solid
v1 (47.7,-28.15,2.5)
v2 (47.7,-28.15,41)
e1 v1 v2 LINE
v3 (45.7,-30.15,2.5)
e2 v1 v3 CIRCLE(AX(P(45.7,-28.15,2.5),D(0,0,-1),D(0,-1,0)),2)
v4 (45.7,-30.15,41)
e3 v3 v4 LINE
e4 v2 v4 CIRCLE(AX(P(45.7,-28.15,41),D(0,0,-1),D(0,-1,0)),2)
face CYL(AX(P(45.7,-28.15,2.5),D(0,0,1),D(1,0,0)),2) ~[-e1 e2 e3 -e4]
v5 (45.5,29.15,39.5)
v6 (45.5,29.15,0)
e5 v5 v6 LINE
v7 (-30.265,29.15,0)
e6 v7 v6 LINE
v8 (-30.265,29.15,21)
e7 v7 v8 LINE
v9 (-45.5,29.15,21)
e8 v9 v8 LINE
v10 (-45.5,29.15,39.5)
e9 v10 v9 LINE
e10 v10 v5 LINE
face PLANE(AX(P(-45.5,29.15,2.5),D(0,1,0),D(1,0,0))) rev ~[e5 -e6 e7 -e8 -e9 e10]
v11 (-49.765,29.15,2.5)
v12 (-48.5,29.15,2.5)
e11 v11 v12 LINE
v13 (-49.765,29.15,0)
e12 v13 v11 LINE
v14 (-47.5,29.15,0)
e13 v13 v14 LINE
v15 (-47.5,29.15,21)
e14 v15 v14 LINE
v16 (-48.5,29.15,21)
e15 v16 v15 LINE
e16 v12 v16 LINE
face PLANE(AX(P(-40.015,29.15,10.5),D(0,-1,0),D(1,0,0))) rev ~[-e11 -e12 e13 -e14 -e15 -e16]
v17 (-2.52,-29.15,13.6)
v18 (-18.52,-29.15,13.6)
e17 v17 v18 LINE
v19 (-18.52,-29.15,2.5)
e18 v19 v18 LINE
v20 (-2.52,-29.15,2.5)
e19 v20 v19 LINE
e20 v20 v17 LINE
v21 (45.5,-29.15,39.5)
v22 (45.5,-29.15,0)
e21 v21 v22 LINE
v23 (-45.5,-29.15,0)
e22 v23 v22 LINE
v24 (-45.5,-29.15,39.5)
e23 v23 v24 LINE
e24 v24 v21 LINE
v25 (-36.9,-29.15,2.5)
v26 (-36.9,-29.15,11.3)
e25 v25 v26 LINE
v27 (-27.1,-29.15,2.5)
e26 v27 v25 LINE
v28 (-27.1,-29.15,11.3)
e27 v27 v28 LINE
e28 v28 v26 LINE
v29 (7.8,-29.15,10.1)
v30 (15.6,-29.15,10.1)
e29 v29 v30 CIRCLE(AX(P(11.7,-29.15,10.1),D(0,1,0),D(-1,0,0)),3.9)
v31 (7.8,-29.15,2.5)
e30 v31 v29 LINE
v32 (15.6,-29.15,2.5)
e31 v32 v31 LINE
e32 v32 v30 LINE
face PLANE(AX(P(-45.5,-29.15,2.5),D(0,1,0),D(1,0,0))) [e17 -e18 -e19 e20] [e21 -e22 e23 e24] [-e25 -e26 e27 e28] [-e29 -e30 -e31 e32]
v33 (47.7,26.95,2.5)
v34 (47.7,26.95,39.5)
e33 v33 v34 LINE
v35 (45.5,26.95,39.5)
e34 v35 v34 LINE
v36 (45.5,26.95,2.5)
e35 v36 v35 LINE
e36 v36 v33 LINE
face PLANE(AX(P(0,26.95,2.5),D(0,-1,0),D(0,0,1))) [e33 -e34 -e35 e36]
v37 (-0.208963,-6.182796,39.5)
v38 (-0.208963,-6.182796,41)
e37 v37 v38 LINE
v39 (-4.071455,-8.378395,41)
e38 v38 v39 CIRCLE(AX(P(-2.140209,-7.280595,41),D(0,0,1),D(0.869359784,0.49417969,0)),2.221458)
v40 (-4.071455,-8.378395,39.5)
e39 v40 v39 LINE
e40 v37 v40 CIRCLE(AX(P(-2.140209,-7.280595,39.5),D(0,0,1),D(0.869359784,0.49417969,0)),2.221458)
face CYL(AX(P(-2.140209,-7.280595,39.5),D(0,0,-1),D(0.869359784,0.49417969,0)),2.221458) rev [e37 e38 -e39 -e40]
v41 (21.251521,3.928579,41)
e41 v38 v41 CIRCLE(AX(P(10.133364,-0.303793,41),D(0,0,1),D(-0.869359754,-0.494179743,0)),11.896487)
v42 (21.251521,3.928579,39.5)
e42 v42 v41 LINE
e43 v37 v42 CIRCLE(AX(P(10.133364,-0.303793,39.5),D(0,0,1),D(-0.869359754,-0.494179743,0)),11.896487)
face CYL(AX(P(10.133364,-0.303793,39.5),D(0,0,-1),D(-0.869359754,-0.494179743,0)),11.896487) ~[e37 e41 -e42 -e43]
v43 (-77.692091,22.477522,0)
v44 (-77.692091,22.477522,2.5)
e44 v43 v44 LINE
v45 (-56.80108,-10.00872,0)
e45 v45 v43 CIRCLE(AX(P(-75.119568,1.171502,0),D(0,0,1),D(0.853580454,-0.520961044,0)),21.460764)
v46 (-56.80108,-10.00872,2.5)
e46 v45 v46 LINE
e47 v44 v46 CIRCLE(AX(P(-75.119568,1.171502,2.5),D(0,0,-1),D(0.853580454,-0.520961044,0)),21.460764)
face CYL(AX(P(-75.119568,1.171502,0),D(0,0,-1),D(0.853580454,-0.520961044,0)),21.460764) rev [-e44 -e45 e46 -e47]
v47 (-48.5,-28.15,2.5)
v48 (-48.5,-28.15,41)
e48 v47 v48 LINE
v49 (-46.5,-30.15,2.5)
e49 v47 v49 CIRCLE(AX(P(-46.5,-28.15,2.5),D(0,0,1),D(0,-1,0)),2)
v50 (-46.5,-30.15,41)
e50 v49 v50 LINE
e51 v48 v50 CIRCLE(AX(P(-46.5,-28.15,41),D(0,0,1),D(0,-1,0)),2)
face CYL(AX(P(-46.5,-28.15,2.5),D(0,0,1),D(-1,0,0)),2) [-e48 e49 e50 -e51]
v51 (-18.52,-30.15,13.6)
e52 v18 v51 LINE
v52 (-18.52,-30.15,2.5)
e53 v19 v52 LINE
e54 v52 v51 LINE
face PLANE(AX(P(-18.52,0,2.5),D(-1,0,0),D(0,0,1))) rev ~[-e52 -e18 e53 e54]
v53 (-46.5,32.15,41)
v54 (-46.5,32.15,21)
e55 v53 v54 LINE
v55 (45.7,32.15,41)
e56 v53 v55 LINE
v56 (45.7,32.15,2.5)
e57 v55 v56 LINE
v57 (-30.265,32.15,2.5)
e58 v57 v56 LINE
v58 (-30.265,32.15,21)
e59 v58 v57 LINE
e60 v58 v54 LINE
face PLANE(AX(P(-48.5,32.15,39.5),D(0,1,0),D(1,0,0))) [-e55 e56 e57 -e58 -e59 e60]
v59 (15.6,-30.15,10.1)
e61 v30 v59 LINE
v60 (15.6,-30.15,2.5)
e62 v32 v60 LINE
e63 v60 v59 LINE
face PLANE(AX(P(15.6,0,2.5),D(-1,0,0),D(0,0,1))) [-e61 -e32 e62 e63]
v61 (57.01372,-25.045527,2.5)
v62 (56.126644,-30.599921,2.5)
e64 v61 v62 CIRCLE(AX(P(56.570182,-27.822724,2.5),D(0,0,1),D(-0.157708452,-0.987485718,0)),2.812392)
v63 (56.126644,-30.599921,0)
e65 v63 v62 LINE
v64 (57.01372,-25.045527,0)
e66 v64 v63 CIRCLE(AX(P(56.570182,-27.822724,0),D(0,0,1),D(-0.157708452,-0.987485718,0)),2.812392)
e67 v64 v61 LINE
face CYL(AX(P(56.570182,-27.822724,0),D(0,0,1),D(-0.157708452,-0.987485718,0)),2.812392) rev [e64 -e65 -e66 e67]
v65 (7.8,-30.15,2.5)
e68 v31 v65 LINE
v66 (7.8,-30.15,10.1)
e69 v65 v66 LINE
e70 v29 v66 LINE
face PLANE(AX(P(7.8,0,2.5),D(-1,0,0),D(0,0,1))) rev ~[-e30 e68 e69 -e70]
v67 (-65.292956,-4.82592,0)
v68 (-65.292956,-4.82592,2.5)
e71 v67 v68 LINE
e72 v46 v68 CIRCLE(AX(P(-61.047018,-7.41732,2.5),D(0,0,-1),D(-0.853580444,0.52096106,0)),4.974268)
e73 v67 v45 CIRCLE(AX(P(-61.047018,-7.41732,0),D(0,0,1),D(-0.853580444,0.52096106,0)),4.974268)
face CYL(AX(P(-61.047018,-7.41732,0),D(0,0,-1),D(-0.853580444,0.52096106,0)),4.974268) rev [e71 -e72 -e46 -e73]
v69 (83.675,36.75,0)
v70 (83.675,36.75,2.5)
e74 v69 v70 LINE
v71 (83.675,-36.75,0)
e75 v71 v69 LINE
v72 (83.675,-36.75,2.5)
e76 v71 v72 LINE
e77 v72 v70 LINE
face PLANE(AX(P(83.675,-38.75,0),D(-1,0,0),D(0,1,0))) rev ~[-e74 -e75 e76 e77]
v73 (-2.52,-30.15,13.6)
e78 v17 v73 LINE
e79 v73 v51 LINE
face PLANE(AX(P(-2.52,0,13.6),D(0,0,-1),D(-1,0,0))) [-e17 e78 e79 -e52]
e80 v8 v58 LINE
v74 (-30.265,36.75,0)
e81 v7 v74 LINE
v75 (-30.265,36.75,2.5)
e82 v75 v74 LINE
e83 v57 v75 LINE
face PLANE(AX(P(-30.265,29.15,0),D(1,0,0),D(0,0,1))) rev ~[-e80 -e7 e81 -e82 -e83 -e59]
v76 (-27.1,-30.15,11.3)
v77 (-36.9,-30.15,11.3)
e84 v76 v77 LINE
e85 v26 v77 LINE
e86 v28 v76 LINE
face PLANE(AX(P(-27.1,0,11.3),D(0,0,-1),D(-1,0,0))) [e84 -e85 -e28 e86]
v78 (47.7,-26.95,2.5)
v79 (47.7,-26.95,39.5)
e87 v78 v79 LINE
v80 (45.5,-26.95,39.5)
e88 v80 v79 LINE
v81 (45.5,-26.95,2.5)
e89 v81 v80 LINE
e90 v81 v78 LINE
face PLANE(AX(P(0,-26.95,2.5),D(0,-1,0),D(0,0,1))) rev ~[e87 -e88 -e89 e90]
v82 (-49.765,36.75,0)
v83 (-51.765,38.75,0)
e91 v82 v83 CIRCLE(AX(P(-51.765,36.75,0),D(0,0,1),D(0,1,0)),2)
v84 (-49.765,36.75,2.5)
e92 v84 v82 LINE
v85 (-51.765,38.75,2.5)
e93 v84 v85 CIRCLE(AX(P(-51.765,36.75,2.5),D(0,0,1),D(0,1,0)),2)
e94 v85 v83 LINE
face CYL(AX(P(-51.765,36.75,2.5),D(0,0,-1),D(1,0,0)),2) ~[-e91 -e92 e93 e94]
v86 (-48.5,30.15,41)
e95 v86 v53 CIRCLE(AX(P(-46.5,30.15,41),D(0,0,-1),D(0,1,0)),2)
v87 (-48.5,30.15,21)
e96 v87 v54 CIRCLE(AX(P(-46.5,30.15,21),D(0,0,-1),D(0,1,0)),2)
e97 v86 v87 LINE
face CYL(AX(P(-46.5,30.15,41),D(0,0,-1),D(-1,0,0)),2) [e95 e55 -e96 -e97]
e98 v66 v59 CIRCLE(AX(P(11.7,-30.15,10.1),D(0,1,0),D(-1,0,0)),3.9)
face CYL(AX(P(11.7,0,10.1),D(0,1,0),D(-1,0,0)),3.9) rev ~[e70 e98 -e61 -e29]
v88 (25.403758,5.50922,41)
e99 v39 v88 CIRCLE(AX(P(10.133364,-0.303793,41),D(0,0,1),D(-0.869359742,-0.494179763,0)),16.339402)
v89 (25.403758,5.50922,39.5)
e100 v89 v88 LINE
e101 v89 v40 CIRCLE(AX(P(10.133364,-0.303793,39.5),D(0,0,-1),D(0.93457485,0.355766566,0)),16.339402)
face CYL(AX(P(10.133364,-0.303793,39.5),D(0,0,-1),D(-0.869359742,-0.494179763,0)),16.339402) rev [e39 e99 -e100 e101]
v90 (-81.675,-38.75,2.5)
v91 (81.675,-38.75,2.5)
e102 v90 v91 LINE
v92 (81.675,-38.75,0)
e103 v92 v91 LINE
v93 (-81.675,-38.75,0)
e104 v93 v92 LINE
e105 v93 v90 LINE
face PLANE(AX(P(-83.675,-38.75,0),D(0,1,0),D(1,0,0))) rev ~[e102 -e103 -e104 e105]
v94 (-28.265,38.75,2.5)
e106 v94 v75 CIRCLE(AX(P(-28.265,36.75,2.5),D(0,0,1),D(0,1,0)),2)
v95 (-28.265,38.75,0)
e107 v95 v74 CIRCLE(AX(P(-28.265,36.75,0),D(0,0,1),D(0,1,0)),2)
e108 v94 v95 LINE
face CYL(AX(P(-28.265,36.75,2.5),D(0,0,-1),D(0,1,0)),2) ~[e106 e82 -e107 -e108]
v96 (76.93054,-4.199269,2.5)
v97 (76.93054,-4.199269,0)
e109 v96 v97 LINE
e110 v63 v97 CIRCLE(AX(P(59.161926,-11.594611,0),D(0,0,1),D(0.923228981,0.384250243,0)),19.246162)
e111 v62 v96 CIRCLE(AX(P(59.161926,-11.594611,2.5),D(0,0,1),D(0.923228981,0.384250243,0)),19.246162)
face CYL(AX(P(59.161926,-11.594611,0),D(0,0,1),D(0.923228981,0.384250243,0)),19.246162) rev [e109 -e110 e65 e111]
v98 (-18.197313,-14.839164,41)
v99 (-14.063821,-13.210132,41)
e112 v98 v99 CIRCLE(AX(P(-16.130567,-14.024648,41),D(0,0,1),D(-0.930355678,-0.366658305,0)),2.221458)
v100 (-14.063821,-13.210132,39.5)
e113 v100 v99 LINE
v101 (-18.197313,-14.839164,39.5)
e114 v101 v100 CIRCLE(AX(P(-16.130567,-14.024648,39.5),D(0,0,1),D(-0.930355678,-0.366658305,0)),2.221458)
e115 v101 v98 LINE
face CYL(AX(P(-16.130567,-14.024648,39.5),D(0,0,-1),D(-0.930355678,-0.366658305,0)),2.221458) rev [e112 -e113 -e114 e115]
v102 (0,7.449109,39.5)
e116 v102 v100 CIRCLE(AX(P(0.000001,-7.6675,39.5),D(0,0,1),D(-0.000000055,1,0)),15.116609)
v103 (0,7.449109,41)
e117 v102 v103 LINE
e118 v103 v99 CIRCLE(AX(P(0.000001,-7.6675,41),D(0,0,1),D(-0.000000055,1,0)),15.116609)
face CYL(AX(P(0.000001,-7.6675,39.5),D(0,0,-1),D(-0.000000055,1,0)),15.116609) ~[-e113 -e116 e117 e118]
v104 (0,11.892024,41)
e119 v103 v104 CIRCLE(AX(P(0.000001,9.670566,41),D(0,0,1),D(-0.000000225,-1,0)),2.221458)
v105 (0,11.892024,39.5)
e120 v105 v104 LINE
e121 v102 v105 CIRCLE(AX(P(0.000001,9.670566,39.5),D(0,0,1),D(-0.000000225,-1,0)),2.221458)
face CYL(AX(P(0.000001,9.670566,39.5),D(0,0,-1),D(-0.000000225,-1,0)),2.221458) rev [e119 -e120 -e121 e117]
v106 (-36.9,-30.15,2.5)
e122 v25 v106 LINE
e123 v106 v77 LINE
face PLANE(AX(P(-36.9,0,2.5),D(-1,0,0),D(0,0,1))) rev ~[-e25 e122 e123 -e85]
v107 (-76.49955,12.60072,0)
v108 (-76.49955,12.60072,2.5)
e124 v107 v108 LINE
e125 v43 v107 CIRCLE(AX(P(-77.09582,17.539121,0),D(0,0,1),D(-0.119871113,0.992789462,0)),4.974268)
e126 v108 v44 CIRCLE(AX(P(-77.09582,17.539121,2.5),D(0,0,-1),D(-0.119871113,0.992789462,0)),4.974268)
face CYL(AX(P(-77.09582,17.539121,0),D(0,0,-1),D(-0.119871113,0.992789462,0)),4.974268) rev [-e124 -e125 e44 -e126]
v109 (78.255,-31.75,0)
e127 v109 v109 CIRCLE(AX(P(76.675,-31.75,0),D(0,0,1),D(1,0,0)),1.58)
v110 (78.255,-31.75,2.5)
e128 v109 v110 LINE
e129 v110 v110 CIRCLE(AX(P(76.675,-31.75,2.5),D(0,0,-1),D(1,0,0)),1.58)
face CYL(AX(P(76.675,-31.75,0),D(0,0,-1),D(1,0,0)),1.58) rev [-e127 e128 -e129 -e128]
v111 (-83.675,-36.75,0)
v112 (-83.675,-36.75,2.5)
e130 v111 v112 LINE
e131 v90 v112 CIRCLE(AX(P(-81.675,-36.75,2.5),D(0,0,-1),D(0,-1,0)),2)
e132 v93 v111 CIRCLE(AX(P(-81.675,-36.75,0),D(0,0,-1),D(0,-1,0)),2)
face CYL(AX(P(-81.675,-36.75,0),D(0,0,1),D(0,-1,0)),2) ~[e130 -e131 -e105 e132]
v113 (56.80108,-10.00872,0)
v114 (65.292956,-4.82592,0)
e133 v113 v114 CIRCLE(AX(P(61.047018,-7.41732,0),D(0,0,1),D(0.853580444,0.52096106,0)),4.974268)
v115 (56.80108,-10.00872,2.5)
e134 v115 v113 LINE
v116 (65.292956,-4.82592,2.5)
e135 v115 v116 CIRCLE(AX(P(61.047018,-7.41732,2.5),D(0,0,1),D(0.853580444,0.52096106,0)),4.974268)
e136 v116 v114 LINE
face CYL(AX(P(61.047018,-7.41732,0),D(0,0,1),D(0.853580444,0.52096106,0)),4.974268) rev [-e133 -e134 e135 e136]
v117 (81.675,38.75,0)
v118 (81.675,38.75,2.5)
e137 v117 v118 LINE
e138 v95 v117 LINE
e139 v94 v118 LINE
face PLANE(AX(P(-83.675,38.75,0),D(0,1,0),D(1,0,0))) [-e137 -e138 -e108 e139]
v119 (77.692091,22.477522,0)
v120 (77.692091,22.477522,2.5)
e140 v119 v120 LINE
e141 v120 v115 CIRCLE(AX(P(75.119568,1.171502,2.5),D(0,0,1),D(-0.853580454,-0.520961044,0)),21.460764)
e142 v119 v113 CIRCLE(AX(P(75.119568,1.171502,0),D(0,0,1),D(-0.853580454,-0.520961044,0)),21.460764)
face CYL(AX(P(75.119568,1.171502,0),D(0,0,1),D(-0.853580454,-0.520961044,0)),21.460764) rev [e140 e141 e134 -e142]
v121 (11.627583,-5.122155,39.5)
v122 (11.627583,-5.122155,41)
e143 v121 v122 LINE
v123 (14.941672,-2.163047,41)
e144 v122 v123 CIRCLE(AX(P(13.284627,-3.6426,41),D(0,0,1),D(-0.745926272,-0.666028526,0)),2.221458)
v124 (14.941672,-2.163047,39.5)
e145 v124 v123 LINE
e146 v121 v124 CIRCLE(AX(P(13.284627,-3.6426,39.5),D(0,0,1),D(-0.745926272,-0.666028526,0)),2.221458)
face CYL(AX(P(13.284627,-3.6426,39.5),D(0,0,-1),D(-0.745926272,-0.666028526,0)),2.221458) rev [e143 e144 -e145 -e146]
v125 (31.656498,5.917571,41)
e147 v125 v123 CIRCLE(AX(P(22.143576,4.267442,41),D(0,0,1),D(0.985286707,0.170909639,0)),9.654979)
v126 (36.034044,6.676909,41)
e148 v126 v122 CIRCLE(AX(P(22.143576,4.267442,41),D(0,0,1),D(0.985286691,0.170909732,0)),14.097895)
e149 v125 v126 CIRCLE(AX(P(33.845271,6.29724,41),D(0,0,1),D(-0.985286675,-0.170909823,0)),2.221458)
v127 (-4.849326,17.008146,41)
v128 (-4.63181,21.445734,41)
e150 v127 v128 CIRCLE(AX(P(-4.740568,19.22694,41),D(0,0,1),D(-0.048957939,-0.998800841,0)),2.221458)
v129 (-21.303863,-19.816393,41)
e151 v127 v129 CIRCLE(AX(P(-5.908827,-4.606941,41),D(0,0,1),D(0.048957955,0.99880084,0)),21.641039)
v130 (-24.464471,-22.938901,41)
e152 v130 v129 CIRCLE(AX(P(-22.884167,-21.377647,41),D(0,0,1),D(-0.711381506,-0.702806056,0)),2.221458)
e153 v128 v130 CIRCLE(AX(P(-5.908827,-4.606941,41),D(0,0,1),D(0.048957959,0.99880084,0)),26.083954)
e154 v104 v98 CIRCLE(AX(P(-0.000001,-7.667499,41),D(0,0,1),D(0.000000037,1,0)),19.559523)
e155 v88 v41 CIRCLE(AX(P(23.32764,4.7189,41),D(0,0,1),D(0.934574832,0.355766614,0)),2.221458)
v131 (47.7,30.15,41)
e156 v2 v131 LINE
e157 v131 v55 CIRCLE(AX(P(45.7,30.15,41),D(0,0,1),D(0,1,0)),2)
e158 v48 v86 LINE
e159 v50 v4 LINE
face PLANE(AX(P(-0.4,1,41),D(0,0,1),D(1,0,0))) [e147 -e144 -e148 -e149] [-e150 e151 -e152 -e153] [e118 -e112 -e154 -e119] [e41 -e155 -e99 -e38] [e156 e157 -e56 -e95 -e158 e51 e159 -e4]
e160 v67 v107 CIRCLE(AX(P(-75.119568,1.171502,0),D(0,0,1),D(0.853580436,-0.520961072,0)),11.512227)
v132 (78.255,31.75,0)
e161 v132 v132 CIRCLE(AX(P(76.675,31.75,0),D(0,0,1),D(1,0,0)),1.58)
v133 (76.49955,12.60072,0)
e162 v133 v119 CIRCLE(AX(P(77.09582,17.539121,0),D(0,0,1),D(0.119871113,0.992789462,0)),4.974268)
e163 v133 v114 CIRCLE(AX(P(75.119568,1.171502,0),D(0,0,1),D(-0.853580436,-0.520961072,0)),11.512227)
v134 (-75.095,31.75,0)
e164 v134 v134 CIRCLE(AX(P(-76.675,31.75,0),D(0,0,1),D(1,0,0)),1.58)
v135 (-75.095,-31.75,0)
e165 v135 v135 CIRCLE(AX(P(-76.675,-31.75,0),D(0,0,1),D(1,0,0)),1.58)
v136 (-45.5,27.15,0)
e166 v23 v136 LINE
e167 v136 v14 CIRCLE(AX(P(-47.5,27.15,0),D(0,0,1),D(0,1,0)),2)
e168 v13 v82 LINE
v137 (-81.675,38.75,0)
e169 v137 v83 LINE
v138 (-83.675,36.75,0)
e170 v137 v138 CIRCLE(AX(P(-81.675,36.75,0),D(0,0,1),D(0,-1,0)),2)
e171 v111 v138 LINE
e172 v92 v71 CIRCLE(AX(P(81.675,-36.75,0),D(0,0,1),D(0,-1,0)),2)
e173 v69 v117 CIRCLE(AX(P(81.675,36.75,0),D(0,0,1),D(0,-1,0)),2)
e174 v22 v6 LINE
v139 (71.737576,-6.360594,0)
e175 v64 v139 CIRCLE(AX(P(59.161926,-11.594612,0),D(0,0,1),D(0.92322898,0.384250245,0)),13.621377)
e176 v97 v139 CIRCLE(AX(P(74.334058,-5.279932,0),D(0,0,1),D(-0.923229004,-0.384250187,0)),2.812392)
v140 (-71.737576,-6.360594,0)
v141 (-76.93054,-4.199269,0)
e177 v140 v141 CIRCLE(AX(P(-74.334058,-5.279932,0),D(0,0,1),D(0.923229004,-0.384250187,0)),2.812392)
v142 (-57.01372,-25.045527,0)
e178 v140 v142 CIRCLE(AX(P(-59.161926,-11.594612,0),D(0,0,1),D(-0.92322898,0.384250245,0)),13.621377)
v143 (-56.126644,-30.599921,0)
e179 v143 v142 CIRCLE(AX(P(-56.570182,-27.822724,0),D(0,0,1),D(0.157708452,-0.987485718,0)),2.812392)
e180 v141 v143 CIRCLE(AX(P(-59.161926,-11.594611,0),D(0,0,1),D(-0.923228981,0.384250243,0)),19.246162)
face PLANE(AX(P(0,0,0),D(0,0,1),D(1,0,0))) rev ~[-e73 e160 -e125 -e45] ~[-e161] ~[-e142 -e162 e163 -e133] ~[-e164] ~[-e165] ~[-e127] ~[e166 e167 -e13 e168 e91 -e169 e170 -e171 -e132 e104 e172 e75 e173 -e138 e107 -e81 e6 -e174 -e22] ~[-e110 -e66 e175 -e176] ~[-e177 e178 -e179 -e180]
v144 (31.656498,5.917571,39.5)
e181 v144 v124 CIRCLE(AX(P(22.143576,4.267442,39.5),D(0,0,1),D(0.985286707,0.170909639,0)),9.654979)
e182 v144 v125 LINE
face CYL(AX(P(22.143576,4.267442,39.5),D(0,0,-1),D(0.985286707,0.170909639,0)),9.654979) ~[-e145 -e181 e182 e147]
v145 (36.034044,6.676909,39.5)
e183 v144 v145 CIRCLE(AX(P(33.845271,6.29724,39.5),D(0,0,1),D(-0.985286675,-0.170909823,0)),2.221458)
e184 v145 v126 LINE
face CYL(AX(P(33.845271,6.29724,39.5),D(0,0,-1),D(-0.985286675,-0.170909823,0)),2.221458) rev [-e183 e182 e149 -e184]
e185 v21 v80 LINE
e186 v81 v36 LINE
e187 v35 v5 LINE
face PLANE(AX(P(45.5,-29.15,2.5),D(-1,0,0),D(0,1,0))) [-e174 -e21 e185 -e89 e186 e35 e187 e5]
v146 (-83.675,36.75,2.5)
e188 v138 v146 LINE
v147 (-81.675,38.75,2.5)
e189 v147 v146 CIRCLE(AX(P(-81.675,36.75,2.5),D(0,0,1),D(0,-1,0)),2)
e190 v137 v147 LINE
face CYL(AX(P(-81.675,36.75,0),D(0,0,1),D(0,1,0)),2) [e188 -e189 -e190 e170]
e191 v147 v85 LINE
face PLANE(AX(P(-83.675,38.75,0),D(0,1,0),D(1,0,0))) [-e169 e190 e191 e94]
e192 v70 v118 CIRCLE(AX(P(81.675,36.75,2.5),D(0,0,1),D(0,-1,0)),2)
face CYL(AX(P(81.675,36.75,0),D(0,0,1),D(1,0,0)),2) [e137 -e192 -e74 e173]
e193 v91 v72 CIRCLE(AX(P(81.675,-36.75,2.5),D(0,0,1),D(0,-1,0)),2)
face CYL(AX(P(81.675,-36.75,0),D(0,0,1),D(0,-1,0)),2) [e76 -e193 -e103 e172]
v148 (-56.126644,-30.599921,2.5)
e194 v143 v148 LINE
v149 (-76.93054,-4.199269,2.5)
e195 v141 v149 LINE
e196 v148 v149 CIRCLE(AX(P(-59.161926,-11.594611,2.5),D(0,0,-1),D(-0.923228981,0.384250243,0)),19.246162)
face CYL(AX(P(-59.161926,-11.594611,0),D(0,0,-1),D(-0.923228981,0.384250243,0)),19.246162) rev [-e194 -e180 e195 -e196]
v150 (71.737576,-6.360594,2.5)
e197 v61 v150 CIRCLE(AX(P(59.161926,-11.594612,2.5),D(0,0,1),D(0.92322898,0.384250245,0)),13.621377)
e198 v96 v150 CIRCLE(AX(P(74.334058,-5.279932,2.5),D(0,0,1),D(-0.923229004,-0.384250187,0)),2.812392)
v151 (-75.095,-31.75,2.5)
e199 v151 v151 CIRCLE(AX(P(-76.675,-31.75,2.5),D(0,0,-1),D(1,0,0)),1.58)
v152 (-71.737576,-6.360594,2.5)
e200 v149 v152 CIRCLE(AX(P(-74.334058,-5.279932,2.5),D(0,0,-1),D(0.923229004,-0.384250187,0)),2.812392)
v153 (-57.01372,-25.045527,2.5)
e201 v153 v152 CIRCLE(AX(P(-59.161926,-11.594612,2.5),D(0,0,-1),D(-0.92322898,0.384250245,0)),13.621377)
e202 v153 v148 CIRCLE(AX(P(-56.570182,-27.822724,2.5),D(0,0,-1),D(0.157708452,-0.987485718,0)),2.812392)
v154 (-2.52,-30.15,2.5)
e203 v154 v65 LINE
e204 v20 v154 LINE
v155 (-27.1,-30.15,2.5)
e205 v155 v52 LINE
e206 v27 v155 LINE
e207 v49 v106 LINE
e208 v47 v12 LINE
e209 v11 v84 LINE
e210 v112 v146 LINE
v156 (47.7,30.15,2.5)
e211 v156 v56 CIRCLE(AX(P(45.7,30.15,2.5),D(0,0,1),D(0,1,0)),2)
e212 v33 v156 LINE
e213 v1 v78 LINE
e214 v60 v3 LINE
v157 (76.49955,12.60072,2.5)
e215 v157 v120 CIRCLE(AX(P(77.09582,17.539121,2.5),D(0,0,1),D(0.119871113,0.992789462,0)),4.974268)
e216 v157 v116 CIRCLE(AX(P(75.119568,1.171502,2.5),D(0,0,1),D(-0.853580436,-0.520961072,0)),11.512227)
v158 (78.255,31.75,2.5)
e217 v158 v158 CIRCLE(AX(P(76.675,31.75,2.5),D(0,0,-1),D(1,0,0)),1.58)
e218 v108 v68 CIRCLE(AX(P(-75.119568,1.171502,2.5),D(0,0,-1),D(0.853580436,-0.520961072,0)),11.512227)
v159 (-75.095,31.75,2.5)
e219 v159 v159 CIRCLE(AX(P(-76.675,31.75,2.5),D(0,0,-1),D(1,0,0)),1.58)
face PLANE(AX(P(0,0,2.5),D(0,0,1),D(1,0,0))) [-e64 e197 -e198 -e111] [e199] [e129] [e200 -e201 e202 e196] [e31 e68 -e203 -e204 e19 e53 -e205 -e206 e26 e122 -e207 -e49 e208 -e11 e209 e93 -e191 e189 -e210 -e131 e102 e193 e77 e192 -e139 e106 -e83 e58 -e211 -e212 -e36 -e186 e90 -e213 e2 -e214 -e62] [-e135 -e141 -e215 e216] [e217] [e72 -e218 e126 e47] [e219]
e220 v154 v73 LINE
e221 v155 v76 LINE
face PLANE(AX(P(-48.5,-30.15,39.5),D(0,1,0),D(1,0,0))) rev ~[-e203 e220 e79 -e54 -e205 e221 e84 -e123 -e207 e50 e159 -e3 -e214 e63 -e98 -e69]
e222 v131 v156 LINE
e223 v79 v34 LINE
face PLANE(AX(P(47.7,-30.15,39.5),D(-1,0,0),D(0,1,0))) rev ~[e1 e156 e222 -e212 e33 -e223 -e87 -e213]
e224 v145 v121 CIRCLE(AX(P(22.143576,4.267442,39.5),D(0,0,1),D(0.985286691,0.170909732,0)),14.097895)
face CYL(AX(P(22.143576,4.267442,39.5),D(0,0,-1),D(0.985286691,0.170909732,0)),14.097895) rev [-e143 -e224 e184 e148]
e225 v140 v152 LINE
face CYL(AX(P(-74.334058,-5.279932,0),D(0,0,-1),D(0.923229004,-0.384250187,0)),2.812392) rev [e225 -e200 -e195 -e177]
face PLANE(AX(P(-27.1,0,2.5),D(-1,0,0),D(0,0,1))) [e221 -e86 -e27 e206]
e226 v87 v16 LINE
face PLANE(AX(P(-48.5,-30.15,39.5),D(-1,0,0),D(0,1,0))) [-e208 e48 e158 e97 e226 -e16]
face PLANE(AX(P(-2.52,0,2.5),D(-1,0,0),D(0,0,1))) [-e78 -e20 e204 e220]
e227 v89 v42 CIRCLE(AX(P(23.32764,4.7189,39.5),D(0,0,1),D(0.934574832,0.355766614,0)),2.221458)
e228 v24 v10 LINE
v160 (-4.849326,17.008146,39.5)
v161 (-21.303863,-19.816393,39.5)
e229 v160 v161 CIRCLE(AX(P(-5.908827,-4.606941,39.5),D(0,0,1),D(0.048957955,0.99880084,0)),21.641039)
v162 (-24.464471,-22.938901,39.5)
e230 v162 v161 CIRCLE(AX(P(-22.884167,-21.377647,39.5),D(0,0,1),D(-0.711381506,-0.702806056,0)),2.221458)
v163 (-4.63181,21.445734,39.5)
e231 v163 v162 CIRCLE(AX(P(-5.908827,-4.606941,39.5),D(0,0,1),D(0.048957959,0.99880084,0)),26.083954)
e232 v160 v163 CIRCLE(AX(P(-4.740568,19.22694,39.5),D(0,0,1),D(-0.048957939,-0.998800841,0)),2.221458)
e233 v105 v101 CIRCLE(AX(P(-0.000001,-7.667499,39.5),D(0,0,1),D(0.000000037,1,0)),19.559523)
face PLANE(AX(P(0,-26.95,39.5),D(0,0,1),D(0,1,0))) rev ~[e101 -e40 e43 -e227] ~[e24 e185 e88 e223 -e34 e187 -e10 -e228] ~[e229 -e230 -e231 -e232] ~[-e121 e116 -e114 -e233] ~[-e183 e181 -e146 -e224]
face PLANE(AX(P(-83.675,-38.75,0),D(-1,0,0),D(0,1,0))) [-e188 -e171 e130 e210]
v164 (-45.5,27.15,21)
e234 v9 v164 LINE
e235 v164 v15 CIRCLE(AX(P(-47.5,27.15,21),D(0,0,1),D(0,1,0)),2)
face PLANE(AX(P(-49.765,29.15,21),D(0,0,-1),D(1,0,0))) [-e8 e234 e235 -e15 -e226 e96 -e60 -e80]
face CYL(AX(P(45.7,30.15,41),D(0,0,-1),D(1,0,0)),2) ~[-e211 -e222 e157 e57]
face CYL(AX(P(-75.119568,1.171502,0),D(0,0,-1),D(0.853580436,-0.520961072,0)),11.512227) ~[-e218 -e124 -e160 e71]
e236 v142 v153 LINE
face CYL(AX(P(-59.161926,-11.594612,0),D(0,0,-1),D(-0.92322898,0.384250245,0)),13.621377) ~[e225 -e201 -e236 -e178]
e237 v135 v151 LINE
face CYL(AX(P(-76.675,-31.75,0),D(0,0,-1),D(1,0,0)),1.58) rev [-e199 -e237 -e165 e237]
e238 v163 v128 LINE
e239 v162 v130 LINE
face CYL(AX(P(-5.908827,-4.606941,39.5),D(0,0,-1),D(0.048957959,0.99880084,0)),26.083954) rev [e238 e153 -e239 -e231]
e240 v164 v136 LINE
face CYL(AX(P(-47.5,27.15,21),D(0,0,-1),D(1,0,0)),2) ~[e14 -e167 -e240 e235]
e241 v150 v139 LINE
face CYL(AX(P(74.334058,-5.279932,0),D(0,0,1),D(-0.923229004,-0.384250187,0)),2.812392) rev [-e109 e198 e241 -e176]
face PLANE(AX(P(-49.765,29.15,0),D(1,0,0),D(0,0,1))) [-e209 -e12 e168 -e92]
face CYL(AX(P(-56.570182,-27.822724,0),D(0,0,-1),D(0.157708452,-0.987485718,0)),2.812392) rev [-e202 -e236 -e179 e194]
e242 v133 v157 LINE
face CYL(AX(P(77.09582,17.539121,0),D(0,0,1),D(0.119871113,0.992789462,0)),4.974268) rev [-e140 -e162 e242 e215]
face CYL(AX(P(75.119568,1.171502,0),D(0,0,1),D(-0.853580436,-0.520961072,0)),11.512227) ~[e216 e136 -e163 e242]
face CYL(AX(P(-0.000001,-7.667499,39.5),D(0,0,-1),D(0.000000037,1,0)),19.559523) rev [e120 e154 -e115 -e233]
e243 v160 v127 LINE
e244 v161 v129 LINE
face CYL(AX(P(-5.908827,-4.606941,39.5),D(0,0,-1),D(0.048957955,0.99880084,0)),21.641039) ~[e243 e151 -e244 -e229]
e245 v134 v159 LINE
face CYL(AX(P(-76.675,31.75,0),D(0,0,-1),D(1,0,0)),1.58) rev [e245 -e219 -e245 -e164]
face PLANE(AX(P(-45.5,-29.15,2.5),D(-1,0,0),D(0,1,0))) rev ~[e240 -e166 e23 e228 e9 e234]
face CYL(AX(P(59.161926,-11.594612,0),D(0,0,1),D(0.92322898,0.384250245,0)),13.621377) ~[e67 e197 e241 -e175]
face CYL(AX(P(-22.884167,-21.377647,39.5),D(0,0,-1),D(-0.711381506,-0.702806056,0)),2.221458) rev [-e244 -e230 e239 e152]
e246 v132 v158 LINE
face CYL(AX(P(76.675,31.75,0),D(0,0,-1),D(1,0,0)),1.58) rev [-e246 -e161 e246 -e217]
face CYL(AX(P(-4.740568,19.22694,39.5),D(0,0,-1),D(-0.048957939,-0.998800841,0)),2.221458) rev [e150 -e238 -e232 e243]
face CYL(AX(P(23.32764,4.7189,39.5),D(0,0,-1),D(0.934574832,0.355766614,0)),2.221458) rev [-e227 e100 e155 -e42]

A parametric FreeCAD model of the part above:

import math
import FreeCAD as App
import Part
import Sketcher

V = App.Vector


def edges_at(feature, points):
    """Names of the edges that pass closest to the given points."""
    edges = feature.Shape.Edges
    near = lambda p: min(range(len(edges)), key=lambda i: edges[i].distToShape(Part.Vertex(*p))[0])
    return sorted({f"Edge{near(p) + 1}" for p in points})


def add_polygon(sketch, points):
    """Adds a closed chain of lines whose ends are joined by coincident constraints."""
    first, n = sketch.GeometryCount, len(points)
    for a, b in zip(points, points[1:] + points[:1]):
        sketch.addGeometry(Part.LineSegment(App.Vector(*a, 0), App.Vector(*b, 0)), False)
    for i in range(n):
        sketch.addConstraint(Sketcher.Constraint("Coincident", first + i, 2, first + (i + 1) % n, 1))

doc = App.newDocument("Part")
params = doc.addObject("Spreadsheet::Sheet", "Params")
for row, (alias, value) in enumerate([
    ("sketch1_width", "91 mm"),
    ("sketch1_height", "77.5 mm"),
    ("sketch1_height2", "58.3 mm"),
    ("sketch1_width2", "167.35 mm"),
    ("pad1_length", "2.5 mm"),
    ("sketch2_diameter", "3.16 mm"),
    ("sketch3_width", "91 mm"),
    ("sketch3_width2", "96.2 mm"),
    ("sketch3_height", "62.3 mm"),
    ("sketch3_height2", "58.3 mm"),
    ("pad2_length", "37 mm"),
    ("sketch4_width", "96.2 mm"),
    ("sketch4_height", "62.3 mm"),
    ("pad3_length", "1.5 mm"),
    ("sketch5_height", "21 mm"),
    ("sketch5_width", "19.5 mm"),
    ("sketch6_height", "37 mm"),
    ("sketch6_width", "53.9 mm"),
    ("pocket3_length", "48.5 mm"),
    ("sketch7_radius", "3.9 mm"),
    ("sketch7_width", "16 mm"),
    ("sketch7_width2", "9.8 mm"),
    ("sketch7_height", "7.6 mm"),
    ("sketch7_height2", "11.1 mm"),
    ("fillet_radius", "2 mm"),
], start=1):
    params.set(f"A{row}", alias)
    params.set(f"B{row}", "=" + value)
    params.setAlias(f"B{row}", alias)

body = doc.addObject("PartDesign::Body", "Body")

# Sketch on XY plane
sketch1 = body.newObject("Sketcher::SketchObject", "Sketch")
sketch1.AttachmentSupport = (doc.getObject("XY_Plane"), [""])
sketch1.MapMode = "FlatFace"
add_polygon(sketch1, [(-84, 39), (-84, -39), (84, -39), (84, 39)])  # lines 0-3
add_polygon(sketch1, [(46, -29), (-46, -29), (-46, 29), (46, 29)])  # lines 4-7
sketch1.addConstraint(Sketcher.Constraint("Vertical", 0))
sketch1.addConstraint(Sketcher.Constraint("Horizontal", 1))
sketch1.addConstraint(Sketcher.Constraint("Vertical", 2))
sketch1.addConstraint(Sketcher.Constraint("Horizontal", 3))
sketch1.addConstraint(Sketcher.Constraint("Horizontal", 4))
sketch1.addConstraint(Sketcher.Constraint("Vertical", 5))
sketch1.addConstraint(Sketcher.Constraint("Horizontal", 6))
sketch1.addConstraint(Sketcher.Constraint("Vertical", 7))
sketch1.addConstraint(Sketcher.Constraint("Symmetric", 0, 2, 2, 2, -1, 1))
sketch1.addConstraint(Sketcher.Constraint("Symmetric", 4, 2, 6, 2, -1, 1))
sketch1.addConstraint(Sketcher.Constraint("DistanceX", 4, 2, 4, 1, 91.0))
sketch1.addConstraint(Sketcher.Constraint("DistanceY", 0, 2, 0, 1, 77.5))
sketch1.addConstraint(Sketcher.Constraint("DistanceY", 5, 1, 5, 2, 58.3))
sketch1.addConstraint(Sketcher.Constraint("DistanceX", 1, 1, 1, 2, 167.35))
sketch1.setExpression("Constraints[18]", "Params.sketch1_width")
sketch1.setExpression("Constraints[19]", "Params.sketch1_height")
sketch1.setExpression("Constraints[20]", "Params.sketch1_height2")
sketch1.setExpression("Constraints[21]", "Params.sketch1_width2")
pad1 = body.newObject("PartDesign::Pad", "Pad")
pad1.Profile = sketch1
pad1.setExpression("Length", "Params.pad1_length")

# Sketch on XY plane
sketch2 = body.newObject("Sketcher::SketchObject", "Sketch001")
sketch2.AttachmentSupport = (doc.getObject("XY_Plane"), [""])
sketch2.MapMode = "FlatFace"
sketch2.addGeometry(Part.Circle(V(-76.7, -31.8, 0), V(0, 0, 1), 1.6), False)
sketch2.addGeometry(Part.Circle(V(-76.7, 31.8, 0), V(0, 0, 1), 1.6), False)
sketch2.addGeometry(Part.Circle(V(76.7, 31.8, 0), V(0, 0, 1), 1.6), False)
sketch2.addGeometry(Part.Circle(V(76.7, -31.8, 0), V(0, 0, 1), 1.6), False)
sketch2.addConstraint(Sketcher.Constraint("Equal", 0, 1))
sketch2.addConstraint(Sketcher.Constraint("Equal", 1, 2))
sketch2.addConstraint(Sketcher.Constraint("Equal", 2, 3))
sketch2.addConstraint(Sketcher.Constraint("Symmetric", 0, 3, 2, 3, -1, 1))
sketch2.addConstraint(Sketcher.Constraint("Symmetric", 1, 3, 3, 3, -1, 1))
sketch2.addConstraint(Sketcher.Constraint("Symmetric", 1, 3, 2, 3, -2))
sketch2.addConstraint(Sketcher.Constraint("Diameter", 0, 3.16))
sketch2.addConstraint(Sketcher.Constraint("DistanceY", 0, 3, 1, 3, 63.5))
sketch2.addConstraint(Sketcher.Constraint("DistanceX", 1, 3, 2, 3, 153.35))
sketch2.setExpression("Constraints[6]", "Params.sketch2_diameter")
pocket1 = body.newObject("PartDesign::Pocket", "Pocket")
pocket1.Profile = sketch2
pocket1.Type = "ThroughAll"
pocket1.Midplane = True

# Sketch on XY plane
sketch3 = body.newObject("Sketcher::SketchObject", "Sketch002")
sketch3.AttachmentSupport = (doc.getObject("XY_Plane"), [""])
sketch3.MapMode = "FlatFace"
sketch3.AttachmentOffset = App.Placement(V(0, 0, 2.5), App.Rotation())
add_polygon(sketch3, [(-48, 32), (-48, -30), (48, -30), (48, 32)])  # lines 0-3
add_polygon(sketch3, [(46, -29), (-46, -29), (-46, 29), (46, 29)])  # lines 4-7
sketch3.addConstraint(Sketcher.Constraint("Vertical", 0))
sketch3.addConstraint(Sketcher.Constraint("Horizontal", 1))
sketch3.addConstraint(Sketcher.Constraint("Vertical", 2))
sketch3.addConstraint(Sketcher.Constraint("Horizontal", 3))
sketch3.addConstraint(Sketcher.Constraint("Horizontal", 4))
sketch3.addConstraint(Sketcher.Constraint("Vertical", 5))
sketch3.addConstraint(Sketcher.Constraint("Horizontal", 6))
sketch3.addConstraint(Sketcher.Constraint("Vertical", 7))
sketch3.addConstraint(Sketcher.Constraint("Symmetric", 4, 2, 6, 2, -1, 1))
sketch3.addConstraint(Sketcher.Constraint("DistanceX", 4, 2, 4, 1, 91.0))
sketch3.addConstraint(Sketcher.Constraint("DistanceX", 1, 1, 1, 2, 96.2))
sketch3.addConstraint(Sketcher.Constraint("DistanceY", 0, 2, 0, 1, 62.3))
sketch3.addConstraint(Sketcher.Constraint("DistanceY", 5, 1, 5, 2, 58.3))
sketch3.addConstraint(Sketcher.Constraint("DistanceX", 0, 2, 4, 2, 3.0))
sketch3.addConstraint(Sketcher.Constraint("DistanceY", 0, 2, 4, 2, 1.0))
sketch3.setExpression("Constraints[17]", "Params.sketch3_width")
sketch3.setExpression("Constraints[18]", "Params.sketch3_width2")
sketch3.setExpression("Constraints[19]", "Params.sketch3_height")
sketch3.setExpression("Constraints[20]", "Params.sketch3_height2")
pad2 = body.newObject("PartDesign::Pad", "Pad001")
pad2.Profile = sketch3
pad2.setExpression("Length", "Params.pad2_length")

# Sketch on XY plane
sketch4 = body.newObject("Sketcher::SketchObject", "Sketch003")
sketch4.AttachmentSupport = (doc.getObject("XY_Plane"), [""])
sketch4.MapMode = "FlatFace"
sketch4.AttachmentOffset = App.Placement(V(0, 0, 39.5), App.Rotation())
add_polygon(sketch4, [(-48.5, 32.15), (-48.5, -30.15), (47.7, -30.15), (47.7, 32.15)])  # lines 0-3
sketch4.addGeometry(Part.ArcOfCircle(Part.Circle(V(-0.000001, -7.667499, 0), V(0, 0, 1), 19.559523), math.radians(89.999998), math.radians(201.509683)), False)  # 4
sketch4.addGeometry(Part.ArcOfCircle(Part.Circle(V(0, 9.670566, 0), V(0, 0, 1), 2.221458), math.radians(-90.000013), math.radians(90.000013)), False)  # 5
sketch4.addGeometry(Part.ArcOfCircle(Part.Circle(V(0.000001, -7.6675, 0), V(0, 0, 1), 15.116609), math.radians(90.000003), math.radians(201.509682)), False)  # 6
sketch4.addGeometry(Part.ArcOfCircle(Part.Circle(V(-16.130567, -14.024648, 0), V(0, 0, 1), 2.221458), math.radians(-158.490327), math.radians(21.509673)), False)  # 7
sketch4.addGeometry(Part.ArcOfCircle(Part.Circle(V(-2.140209, -7.280595, 0), V(0, 0, 1), 2.221458), math.radians(29.615673), math.radians(209.615682)), False)  # 8
sketch4.addGeometry(Part.ArcOfCircle(Part.Circle(V(10.133364, -0.303793, 0), V(0, 0, 1), 11.896487), math.radians(-150.384324), math.radians(20.840433)), False)  # 9
sketch4.addGeometry(Part.ArcOfCircle(Part.Circle(V(23.32764, 4.7189, 0), V(0, 0, 1), 2.221458), math.radians(20.840436), math.radians(200.840436)), False)  # 10
sketch4.addGeometry(Part.ArcOfCircle(Part.Circle(V(10.133364, -0.303793, 0), V(0, 0, 1), 16.339402), math.radians(-150.384322), math.radians(20.840433)), False)  # 11
sketch4.addGeometry(Part.ArcOfCircle(Part.Circle(V(-5.908827, -4.606941, 0), V(0, 0, 1), 26.083954), math.radians(87.193794), math.radians(224.652566)), False)  # 12
sketch4.addGeometry(Part.ArcOfCircle(Part.Circle(V(-4.740568, 19.22694, 0), V(0, 0, 1), 2.221458), math.radians(-92.806205), math.radians(87.193795)), False)  # 13
sketch4.addGeometry(Part.ArcOfCircle(Part.Circle(V(-5.908827, -4.606941, 0), V(0, 0, 1), 21.641039), math.radians(87.193794), math.radians(224.652565)), False)  # 14
sketch4.addGeometry(Part.ArcOfCircle(Part.Circle(V(-22.884167, -21.377647, 0), V(0, 0, 1), 2.221458), math.radians(-135.34743), math.radians(44.65257)), False)  # 15
sketch4.addGeometry(Part.ArcOfCircle(Part.Circle(V(33.845271, 6.29724, 0), V(0, 0, 1), 2.221458), math.radians(-170.159278), math.radians(9.840722)), False)  # 16
sketch4.addGeometry(Part.ArcOfCircle(Part.Circle(V(22.143576, 4.267442, 0), V(0, 0, 1), 9.654979), math.radians(9.840712), math.radians(221.761263)), False)  # 17
sketch4.addGeometry(Part.ArcOfCircle(Part.Circle(V(13.284627, -3.6426, 0), V(0, 0, 1), 2.221458), math.radians(-138.23872), math.radians(41.761243)), False)  # 18
sketch4.addGeometry(Part.ArcOfCircle(Part.Circle(V(22.143576, 4.267442, 0), V(0, 0, 1), 14.097895), math.radians(9.840717), math.radians(221.761261)), False)  # 19
sketch4.addConstraint(Sketcher.Constraint("Coincident", 4, 1, 5, 2))
sketch4.addConstraint(Sketcher.Constraint("Coincident", 5, 1, 6, 1))
sketch4.addConstraint(Sketcher.Constraint("Coincident", 6, 2, 7, 2))
sketch4.addConstraint(Sketcher.Constraint("Coincident", 7, 1, 4, 2))
sketch4.addConstraint(Sketcher.Constraint("Coincident", 8, 1, 9, 1))
sketch4.addConstraint(Sketcher.Constraint("Coincident", 9, 2, 10, 2))
sketch4.addConstraint(Sketcher.Constraint("Coincident", 10, 1, 11, 2))
sketch4.addConstraint(Sketcher.Constraint("Coincident", 11, 1, 8, 2))
sketch4.addConstraint(Sketcher.Constraint("Coincident", 12, 1, 13, 2))
sketch4.addConstraint(Sketcher.Constraint("Coincident", 13, 1, 14, 1))
sketch4.addConstraint(Sketcher.Constraint("Coincident", 14, 2, 15, 2))
sketch4.addConstraint(Sketcher.Constraint("Coincident", 15, 1, 12, 2))
sketch4.addConstraint(Sketcher.Constraint("Coincident", 16, 1, 17, 1))
sketch4.addConstraint(Sketcher.Constraint("Coincident", 17, 2, 18, 2))
sketch4.addConstraint(Sketcher.Constraint("Coincident", 18, 1, 19, 2))
sketch4.addConstraint(Sketcher.Constraint("Coincident", 19, 1, 16, 2))
sketch4.addConstraint(Sketcher.Constraint("Vertical", 0))
sketch4.addConstraint(Sketcher.Constraint("Horizontal", 1))
sketch4.addConstraint(Sketcher.Constraint("Vertical", 2))
sketch4.addConstraint(Sketcher.Constraint("Horizontal", 3))
sketch4.addConstraint(Sketcher.Constraint("Coincident", 6, 3, 4, 3))
sketch4.addConstraint(Sketcher.Constraint("Coincident", 11, 3, 9, 3))
sketch4.addConstraint(Sketcher.Constraint("Coincident", 14, 3, 12, 3))
sketch4.addConstraint(Sketcher.Constraint("Coincident", 19, 3, 17, 3))
sketch4.addConstraint(Sketcher.Constraint("PointOnObject", 4, 3, -2))
sketch4.addConstraint(Sketcher.Constraint("PointOnObject", 5, 3, -2))
sketch4.addConstraint(Sketcher.Constraint("PointOnObject", 4, 1, -2))
sketch4.addConstraint(Sketcher.Constraint("PointOnObject", 5, 1, -2))
sketch4.addConstraint(Sketcher.Constraint("DistanceX", 1, 1, 1, 2, 96.2))
sketch4.addConstraint(Sketcher.Constraint("DistanceY", 0, 2, 0, 1, 62.3))
sketch4.addConstraint(Sketcher.Constraint("DistanceX", 0, 2, -1, 1, 48.5))
sketch4.addConstraint(Sketcher.Constraint("DistanceY", 0, 2, -1, 1, 30.15))
sketch4.addConstraint(Sketcher.Constraint("Radius", 6, 15.116609))
sketch4.addConstraint(Sketcher.Constraint("Radius", 14, 21.641039))
sketch4.addConstraint(Sketcher.Constraint("Radius", 16, 2.221458))
sketch4.addConstraint(Sketcher.Constraint("Radius", 17, 9.654979))
sketch4.addConstraint(Sketcher.Constraint("Radius", 4, 19.559523))
sketch4.addConstraint(Sketcher.Constraint("Radius", 8, 2.221458))
sketch4.addConstraint(Sketcher.Constraint("Radius", 9, 11.896487))
sketch4.addConstraint(Sketcher.Constraint("Radius", 12, 26.083954))
sketch4.addConstraint(Sketcher.Constraint("DistanceY", 15, 3, 7, 3, 7.352999))
sketch4.addConstraint(Sketcher.Constraint("DistanceY", 4, 3, -1, 1, 7.667499))
sketch4.addConstraint(Sketcher.Constraint("DistanceY", -1, 1, 10, 3, 4.7189))
sketch4.addConstraint(Sketcher.Constraint("DistanceY", 18, 3, -1, 1, 3.6426))
sketch4.addConstraint(Sketcher.Constraint("DistanceY", 15, 1, -1, 1, 22.938901))
sketch4.addConstraint(Sketcher.Constraint("DistanceX", 15, 3, 7, 3, 6.7536))
sketch4.addConstraint(Sketcher.Constraint("DistanceY", 19, 3, 16, 3, 2.029798))
sketch4.addConstraint(Sketcher.Constraint("DistanceY", 8, 3, 8, 1, 1.097799))
sketch4.addConstraint(Sketcher.Constraint("DistanceY", 11, 1, 8, 3, 1.0978))
sketch4.addConstraint(Sketcher.Constraint("DistanceX", 8, 3, -1, 1, 2.140209))
sketch4.addConstraint(Sketcher.Constraint("DistanceX", -1, 1, 10, 3, 23.32764))
sketch4.addConstraint(Sketcher.Constraint("DistanceY", 12, 3, -1, 1, 4.606941))
sketch4.addConstraint(Sketcher.Constraint("DistanceY", -1, 1, 13, 3, 19.22694))
sketch4.addConstraint(Sketcher.Constraint("DistanceX", -1, 1, 16, 3, 33.845271))
sketch4.addConstraint(Sketcher.Constraint("DistanceY", -1, 1, 16, 3, 6.29724))
sketch4.addConstraint(Sketcher.Constraint("DistanceX", 6, 2, -1, 1, 14.063821))
sketch4.addConstraint(Sketcher.Constraint("DistanceX", -1, 1, 9, 2, 21.251521))
sketch4.addConstraint(Sketcher.Constraint("DistanceY", -1, 1, 10, 1, 5.50922))
sketch4.addConstraint(Sketcher.Constraint("DistanceX", 12, 1, -1, 1, 4.63181))
sketch4.addConstraint(Sketcher.Constraint("DistanceX", 15, 1, -1, 1, 24.464471))
sketch4.addConstraint(Sketcher.Constraint("DistanceY", -1, 1, 16, 1, 5.917571))
sketch4.addConstraint(Sketcher.Constraint("DistanceX", -1, 1, 17, 2, 14.941672))
sketch4.addConstraint(Sketcher.Constraint("DistanceY", -1, 1, 19, 1, 6.676909))
sketch4.addConstraint(Sketcher.Constraint("DistanceY", 8, 3, 5, 3, 16.951162))
sketch4.addConstraint(Sketcher.Constraint("DistanceX", 13, 1, 13, 3, 0.108758))
sketch4.addConstraint(Sketcher.Constraint("DistanceX", 14, 2, 7, 1, 3.10655))
sketch4.addConstraint(Sketcher.Constraint("DistanceY", 14, 2, 7, 1, 4.977229))
sketch4.addConstraint(Sketcher.Constraint("DistanceX", 18, 1, 17, 2, 3.314089))
sketch4.setExpression("Constraints[32]", "Params.sketch4_width")
sketch4.setExpression("Constraints[33]", "Params.sketch4_height")
pad3 = body.newObject("PartDesign::Pad", "Pad002")
pad3.Profile = sketch4
pad3.setExpression("Length", "Params.pad3_length")

# Sketch on XZ plane
sketch5 = body.newObject("Sketcher::SketchObject", "Sketch004")
sketch5.AttachmentSupport = (doc.getObject("XZ_Plane"), [""])
sketch5.MapMode = "FlatFace"
sketch5.AttachmentOffset = App.Placement(V(0, 0, -29.15), App.Rotation())
add_polygon(sketch5, [(-50, 21), (-50, 0), (-30, 0), (-30, 21)])  # lines 0-3
sketch5.addConstraint(Sketcher.Constraint("Vertical", 0))
sketch5.addConstraint(Sketcher.Constraint("Horizontal", 1))
sketch5.addConstraint(Sketcher.Constraint("Vertical", 2))
sketch5.addConstraint(Sketcher.Constraint("Horizontal", 3))
sketch5.addConstraint(Sketcher.Constraint("PointOnObject", 0, 2, -1))
sketch5.addConstraint(Sketcher.Constraint("DistanceY", 0, 2, 0, 1, 21.0))
sketch5.addConstraint(Sketcher.Constraint("DistanceX", 1, 1, 1, 2, 19.5))
sketch5.addConstraint(Sketcher.Constraint("DistanceX", 0, 2, -1, 1, 49.765))
sketch5.setExpression("Constraints[9]", "Params.sketch5_height")
sketch5.setExpression("Constraints[10]", "Params.sketch5_width")
pocket2 = body.newObject("PartDesign::Pocket", "Pocket001")
pocket2.Profile = sketch5
pocket2.Type = "ThroughAll"

# Sketch on YZ plane
sketch6 = body.newObject("Sketcher::SketchObject", "Sketch005")
sketch6.AttachmentSupport = (doc.getObject("YZ_Plane"), [""])
sketch6.MapMode = "FlatFace"
add_polygon(sketch6, [(-27, 40), (-27, 2), (27, 2), (27, 40)])  # lines 0-3
sketch6.addConstraint(Sketcher.Constraint("Vertical", 0))
sketch6.addConstraint(Sketcher.Constraint("Horizontal", 1))
sketch6.addConstraint(Sketcher.Constraint("Vertical", 2))
sketch6.addConstraint(Sketcher.Constraint("Horizontal", 3))
sketch6.addConstraint(Sketcher.Constraint("DistanceY", 0, 2, 0, 1, 37.0))
sketch6.addConstraint(Sketcher.Constraint("DistanceX", 1, 1, 1, 2, 53.9))
sketch6.addConstraint(Sketcher.Constraint("DistanceY", -1, 1, 0, 2, 2.5))
sketch6.addConstraint(Sketcher.Constraint("DistanceX", 0, 2, -1, 1, 26.95))
sketch6.setExpression("Constraints[8]", "Params.sketch6_height")
sketch6.setExpression("Constraints[9]", "Params.sketch6_width")
pocket3 = body.newObject("PartDesign::Pocket", "Pocket002")
pocket3.Profile = sketch6
pocket3.setExpression("Length", "Params.pocket3_length")
pocket3.Reversed = True

# Sketch on XZ plane
sketch7 = body.newObject("Sketcher::SketchObject", "Sketch006")
sketch7.AttachmentSupport = (doc.getObject("XZ_Plane"), [""])
sketch7.MapMode = "FlatFace"
sketch7.addGeometry(Part.LineSegment(V(15.6, 10.1, 0), V(15.6, 2.5, 0)), False)  # 0
sketch7.addGeometry(Part.LineSegment(V(15.6, 2.5, 0), V(7.8, 2.5, 0)), False)  # 1
sketch7.addGeometry(Part.LineSegment(V(7.8, 2.5, 0), V(7.8, 10.1, 0)), False)  # 2
sketch7.addGeometry(Part.ArcOfCircle(Part.Circle(V(11.7, 10.1, 0), V(0, 0, 1), 3.9), math.radians(0), math.radians(180)), False)  # 3
add_polygon(sketch7, [(-2.5, 13.6), (-2.5, 2.5), (-18.5, 2.5), (-18.5, 13.6)])  # lines 4-7
add_polygon(sketch7, [(-27.1, 11.3), (-27.1, 2.5), (-36.9, 2.5), (-36.9, 11.3)])  # lines 8-11
sketch7.addConstraint(Sketcher.Constraint("Coincident", 0, 2, 1, 1))
sketch7.addConstraint(Sketcher.Constraint("Coincident", 1, 2, 2, 1))
sketch7.addConstraint(Sketcher.Constraint("Tangent", 2, 2, 3, 2))
sketch7.addConstraint(Sketcher.Constraint("Tangent", 3, 1, 0, 1))
sketch7.addConstraint(Sketcher.Constraint("Vertical", 0))
sketch7.addConstraint(Sketcher.Constraint("Horizontal", 1))
sketch7.addConstraint(Sketcher.Constraint("Vertical", 2))
sketch7.addConstraint(Sketcher.Constraint("Vertical", 4))
sketch7.addConstraint(Sketcher.Constraint("Horizontal", 5))
sketch7.addConstraint(Sketcher.Constraint("Vertical", 6))
sketch7.addConstraint(Sketcher.Constraint("Horizontal", 7))
sketch7.addConstraint(Sketcher.Constraint("Vertical", 8))
sketch7.addConstraint(Sketcher.Constraint("Horizontal", 9))
sketch7.addConstraint(Sketcher.Constraint("Vertical", 10))
sketch7.addConstraint(Sketcher.Constraint("Horizontal", 11))
sketch7.addConstraint(Sketcher.Constraint("Horizontal", 1, 2, 4, 2))
sketch7.addConstraint(Sketcher.Constraint("Horizontal", 5, 2, 8, 2))
sketch7.addConstraint(Sketcher.Constraint("Radius", 3, 3.9))
sketch7.addConstraint(Sketcher.Constraint("DistanceX", 5, 2, 5, 1, 16.0))
sketch7.addConstraint(Sketcher.Constraint("DistanceX", 9, 2, 9, 1, 9.8))
sketch7.addConstraint(Sketcher.Constraint("DistanceY", 0, 2, 0, 1, 7.6))
sketch7.addConstraint(Sketcher.Constraint("DistanceY", 4, 2, 4, 1, 11.1))
sketch7.addConstraint(Sketcher.Constraint("DistanceY", 8, 2, 8, 1, 8.8))
sketch7.addConstraint(Sketcher.Constraint("DistanceX", -1, 1, 3, 3, 11.7))
sketch7.addConstraint(Sketcher.Constraint("DistanceY", -1, 1, 3, 3, 10.1))
sketch7.addConstraint(Sketcher.Constraint("DistanceX", 8, 2, -1, 1, 27.1))
sketch7.addConstraint(Sketcher.Constraint("DistanceX", 4, 2, -1, 1, 2.52))
sketch7.setExpression("Constraints[25]", "Params.sketch7_radius")
sketch7.setExpression("Constraints[26]", "Params.sketch7_width")
sketch7.setExpression("Constraints[27]", "Params.sketch7_width2")
sketch7.setExpression("Constraints[28]", "Params.sketch7_height")
sketch7.setExpression("Constraints[29]", "Params.sketch7_height2")
pocket4 = body.newObject("PartDesign::Pocket", "Pocket003")
pocket4.Profile = sketch7
pocket4.Type = "ThroughAll"
pocket4.Reversed = True
doc.recompute()

fillet = body.newObject("PartDesign::Fillet", "Fillet")
fillet.Base = (pocket4, edges_at(pocket4, [
    (47.7, -30.15, 21.75),
    (47.7, 32.15, 21.75),
    (-48.5, 32.15, 31),
    (-48.5, -30.15, 21.75),
    (-83.675, -38.75, 1.25),
    (-83.675, 38.75, 1.25),
    (83.675, 38.75, 1.25),
    (83.675, -38.75, 1.25),
    (-49.765, 38.75, 1.25),
    (-30.265, 38.75, 1.25),
    (-45.5, 29.15, 10.5),
]))
fillet.setExpression("Radius", "Params.fillet_radius")

# Sketch on XY plane
sketch8 = body.newObject("Sketcher::SketchObject", "Sketch007")
sketch8.AttachmentSupport = (doc.getObject("XY_Plane"), [""])
sketch8.MapMode = "FlatFace"
sketch8.addGeometry(Part.ArcOfCircle(Part.Circle(V(-75.119568, 1.171502, 0), V(0, 0, 1), 21.460764), math.radians(-31.396739), math.radians(96.884656)), False)
sketch8.addGeometry(Part.ArcOfCircle(Part.Circle(V(-77.09582, 17.539121, 0), V(0, 0, 1), 4.974268), math.radians(96.884664), math.radians(276.884651)), False)
sketch8.addGeometry(Part.ArcOfCircle(Part.Circle(V(-75.119568, 1.171502, 0), V(0, 0, 1), 11.512227), math.radians(-31.39674), math.radians(96.884658)), False)
sketch8.addGeometry(Part.ArcOfCircle(Part.Circle(V(-61.047018, -7.41732, 0), V(0, 0, 1), 4.974268), math.radians(148.60326), math.radians(328.60326)), False)
sketch8.addGeometry(Part.ArcOfCircle(Part.Circle(V(-59.161926, -11.594611, 0), V(0, 0, 1), 19.246162), math.radians(157.402798), math.radians(279.07391)), False)
sketch8.addGeometry(Part.ArcOfCircle(Part.Circle(V(-56.570182, -27.822724, 0), V(0, 0, 1), 2.812392), math.radians(-80.926088), math.radians(99.073912)), False)
sketch8.addGeometry(Part.ArcOfCircle(Part.Circle(V(-59.161926, -11.594612, 0), V(0, 0, 1), 13.621377), math.radians(157.402798), math.radians(279.07391)), False)
sketch8.addGeometry(Part.ArcOfCircle(Part.Circle(V(-74.334058, -5.279932, 0), V(0, 0, 1), 2.812392), math.radians(-22.597199), math.radians(157.40279)), False)
sketch8.addConstraint(Sketcher.Constraint("Coincident", 0, 2, 1, 1))
sketch8.addConstraint(Sketcher.Constraint("Coincident", 1, 2, 2, 2))
sketch8.addConstraint(Sketcher.Constraint("Coincident", 2, 1, 3, 1))
sketch8.addConstraint(Sketcher.Constraint("Coincident", 3, 2, 0, 1))
sketch8.addConstraint(Sketcher.Constraint("Coincident", 4, 2, 5, 1))
sketch8.addConstraint(Sketcher.Constraint("Coincident", 5, 2, 6, 2))
sketch8.addConstraint(Sketcher.Constraint("Coincident", 6, 1, 7, 1))
sketch8.addConstraint(Sketcher.Constraint("Coincident", 7, 2, 4, 1))
sketch8.addConstraint(Sketcher.Constraint("Coincident", 2, 3, 0, 3))
sketch8.addConstraint(Sketcher.Constraint("Coincident", 6, 3, 4, 3))
sketch8.addConstraint(Sketcher.Constraint("Radius", 1, 4.974268))
sketch8.addConstraint(Sketcher.Constraint("Radius", 4, 19.246162))
sketch8.addConstraint(Sketcher.Constraint("Radius", 0, 21.460764))
sketch8.addConstraint(Sketcher.Constraint("Radius", 5, 2.812392))
sketch8.addConstraint(Sketcher.Constraint("DistanceY", -1, 1, 0, 3, 1.171502))
sketch8.addConstraint(Sketcher.Constraint("DistanceX", 1, 3, 3, 3, 16.048802))
sketch8.addConstraint(Sketcher.Constraint("DistanceY", 1, 3, 0, 2, 4.938401))
sketch8.addConstraint(Sketcher.Constraint("DistanceY", 1, 2, 1, 3, 4.938401))
sketch8.addConstraint(Sketcher.Constraint("DistanceY", 3, 3, 2, 1, 2.5914))
sketch8.addConstraint(Sketcher.Constraint("DistanceY", 3, 2, 3, 3, 2.5914))
sketch8.addConstraint(Sketcher.Constraint("DistanceX", 3, 2, 5, 3, 0.230898))
sketch8.addConstraint(Sketcher.Constraint("DistanceY", 4, 2, 3, 2, 20.591201))
sketch8.addConstraint(Sketcher.Constraint("DistanceX", 0, 3, -1, 1, 75.119568))
sketch8.addConstraint(Sketcher.Constraint("DistanceX", 1, 3, -1, 1, 77.09582))
sketch8.addConstraint(Sketcher.Constraint("DistanceY", 4, 3, -1, 1, 11.594611))
sketch8.addConstraint(Sketcher.Constraint("DistanceX", 7, 3, -1, 1, 74.334058))
sketch8.addConstraint(Sketcher.Constraint("DistanceY", 7, 3, -1, 1, 5.279932))
sketch8.addConstraint(Sketcher.Constraint("DistanceX", 5, 2, -1, 1, 57.01372))
sketch8.addConstraint(Sketcher.Constraint("DistanceX", 7, 2, -1, 1, 76.93054))
sketch8.addConstraint(Sketcher.Constraint("DistanceX", 6, 1, 2, 1, 6.44462))
pocket5 = body.newObject("PartDesign::Pocket", "Pocket004")
pocket5.Profile = sketch8
pocket5.Type = "ThroughAll"
pocket5.Midplane = True
doc.recompute()

mirrored = body.newObject("PartDesign::Mirrored", "Mirrored")
mirrored.Originals = [pocket5]
mirrored.MirrorPlane = (doc.getObject("YZ_Plane"), [""])
body.Tip = mirrored

doc.recompute()
